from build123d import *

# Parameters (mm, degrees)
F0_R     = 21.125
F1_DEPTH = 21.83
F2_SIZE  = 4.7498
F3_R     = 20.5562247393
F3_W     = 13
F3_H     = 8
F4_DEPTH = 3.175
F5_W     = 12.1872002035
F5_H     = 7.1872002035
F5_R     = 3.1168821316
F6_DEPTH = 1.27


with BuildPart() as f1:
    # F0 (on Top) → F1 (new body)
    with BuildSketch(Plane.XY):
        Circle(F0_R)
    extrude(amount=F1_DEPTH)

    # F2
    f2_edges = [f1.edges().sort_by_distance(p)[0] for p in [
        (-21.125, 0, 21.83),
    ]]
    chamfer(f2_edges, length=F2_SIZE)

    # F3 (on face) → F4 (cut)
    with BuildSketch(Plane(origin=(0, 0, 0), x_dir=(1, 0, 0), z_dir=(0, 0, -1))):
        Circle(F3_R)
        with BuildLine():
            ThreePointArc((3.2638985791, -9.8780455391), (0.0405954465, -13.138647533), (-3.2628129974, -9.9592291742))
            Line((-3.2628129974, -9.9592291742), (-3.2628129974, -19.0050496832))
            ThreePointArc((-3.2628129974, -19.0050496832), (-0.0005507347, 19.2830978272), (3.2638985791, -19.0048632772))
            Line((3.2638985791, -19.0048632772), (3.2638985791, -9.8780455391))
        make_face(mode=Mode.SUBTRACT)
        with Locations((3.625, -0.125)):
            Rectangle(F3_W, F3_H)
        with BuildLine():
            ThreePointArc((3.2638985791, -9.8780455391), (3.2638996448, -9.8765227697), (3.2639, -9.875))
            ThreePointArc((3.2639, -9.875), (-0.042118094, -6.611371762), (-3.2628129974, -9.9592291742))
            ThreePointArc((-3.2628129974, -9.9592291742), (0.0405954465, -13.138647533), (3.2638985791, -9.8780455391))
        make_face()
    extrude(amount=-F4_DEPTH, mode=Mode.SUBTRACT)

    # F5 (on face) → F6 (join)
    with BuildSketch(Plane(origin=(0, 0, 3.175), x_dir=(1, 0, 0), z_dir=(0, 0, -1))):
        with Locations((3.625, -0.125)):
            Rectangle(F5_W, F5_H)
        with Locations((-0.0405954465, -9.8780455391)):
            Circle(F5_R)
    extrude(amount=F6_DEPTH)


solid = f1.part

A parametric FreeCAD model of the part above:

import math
import FreeCAD as App
import Part
import Sketcher
from FreeCAD import Vector
Q = App.Units.Quantity


def edges_at(feature, points):
    """Names of the edges that pass closest to the given points."""
    edges = feature.Shape.Edges
    near = lambda p: min(range(len(edges)), key=lambda i: edges[i].distToShape(Part.Vertex(*p))[0])
    return sorted({f"Edge{near(p) + 1}" for p in points})

doc = App.newDocument("Part")
body = doc.addObject("PartDesign::Body", "Body")

# Sketch on XY plane
sketch1 = body.newObject("Sketcher::SketchObject", "Sketch")
sketch1.AttachmentSupport = (doc.getObject("XY_Plane"), [""])
sketch1.MapMode = "FlatFace"
sketch1.addGeometry(Part.Circle(Vector(0, 0, 0), Vector(0, 0, 1), 21), False)
sketch1.addConstraint([
    Sketcher.Constraint("Coincident", 0, 3, -1, 1),
    Sketcher.Constraint("Diameter", 0, Q("42.25 mm")),
])
pad1 = body.newObject("PartDesign::Pad", "Pad")
pad1.Profile = sketch1
pad1.Length = 21.83
doc.recompute()

chamfer = body.newObject("PartDesign::Chamfer", "Chamfer")
chamfer.Base = (pad1, edges_at(pad1, [(-21.125, 0, 21.83)]))
chamfer.Size = Q("0.187 in")

# Sketch on XY plane
sketch2 = body.newObject("Sketcher::SketchObject", "Sketch001")
sketch2.AttachmentSupport = (doc.getObject("XY_Plane"), [""])
sketch2.MapMode = "FlatFace"
sketch2.addGeometry([
    Part.Circle(Vector(0, 0, 0), Vector(0, 0, 1), 20.5562),  # 0
    Part.LineSegment(Vector(3.2639, 19.0049, 0), Vector(3.2639, 9.878, 0)),  # 1
    Part.ArcOfCircle(Part.Circle(Vector(0.0002, 9.875, 0), Vector(0, 0, 1), 3.2637), math.radians(0), math.radians(0.05)),  # 2
    Part.ArcOfCircle(Part.Circle(Vector(0, 9.875, 0), Vector(0, 0, 1), 3.2639), math.radians(179), math.radians(360)),  # 3
    Part.LineSegment(Vector(-3.2628, 9.9592, 0), Vector(-3.2628, 19.005, 0)),  # 4
    Part.ArcOfCircle(Part.Circle(Vector(0, 0, 0), Vector(0, 0, 1), 19.2831), math.radians(100), math.radians(440)),  # 5
    Part.LineSegment(Vector(-2.875, -3.875, 0), Vector(-2.875, 4.125, 0)),  # 6
    Part.LineSegment(Vector(-2.875, 4.125, 0), Vector(10.125, 4.125, 0)),  # 7
    Part.LineSegment(Vector(10.125, 4.125, 0), Vector(10.125, -3.875, 0)),  # 8
    Part.LineSegment(Vector(10.125, -3.875, 0), Vector(-2.875, -3.875, 0)),  # 9
], False)
sketch2.addConstraint([
    Sketcher.Constraint("Coincident", 1, 2, 2, 2),
    Sketcher.Constraint("Tangent", 2, 1, 3, 2),
    Sketcher.Constraint("Coincident", 3, 1, 4, 1),
    Sketcher.Constraint("Coincident", 4, 2, 5, 1),
    Sketcher.Constraint("Coincident", 5, 2, 1, 1),
    Sketcher.Constraint("Coincident", 6, 2, 7, 1),
    Sketcher.Constraint("Coincident", 7, 2, 8, 1),
    Sketcher.Constraint("Coincident", 8, 2, 9, 1),
    Sketcher.Constraint("Coincident", 9, 2, 6, 1),
    Sketcher.Constraint("Vertical", 1),
    Sketcher.Constraint("Vertical", 4),
    Sketcher.Constraint("Vertical", 6),
    Sketcher.Constraint("Horizontal", 7),
    Sketcher.Constraint("Vertical", 8),
    Sketcher.Constraint("Horizontal", 9),
    Sketcher.Constraint("Coincident", 0, 3, -1, 1),
    Sketcher.Constraint("Coincident", 5, 3, -1, 1),
    Sketcher.Constraint("PointOnObject", 3, 3, -2),
    Sketcher.Constraint("Horizontal", 3, 3, 2, 1),
    Sketcher.Constraint("Radius", 3, Q("0.1285 in")),
    Sketcher.Constraint("Diameter", 0, Q("41.112449 mm")),
    Sketcher.Constraint("DistanceX", 7, 1, 7, 2, Q("13 mm")),
    Sketcher.Constraint("DistanceY", 6, 1, 6, 2, Q("8 mm")),
    Sketcher.Constraint("Radius", 2, Q("3.263656 mm")),
    Sketcher.Constraint("Radius", 5, Q("19.283098 mm")),
    Sketcher.Constraint("DistanceY", 4, 1, 4, 2, Q("9.045821 mm")),
    Sketcher.Constraint("DistanceY", -1, 1, 2, 3, Q("9.875 mm")),
    Sketcher.Constraint("DistanceX", 6, 2, -1, 1, Q("2.875 mm")),
    Sketcher.Constraint("DistanceY", -1, 1, 6, 2, Q("4.125 mm")),
    Sketcher.Constraint("DistanceY", 1, 2, 1, 1, Q("9.126818 mm")),
])
pocket1 = body.newObject("PartDesign::Pocket", "Pocket")
pocket1.Profile = sketch2
pocket1.Length = Q("0.125 in")
pocket1.Reversed = True

# Sketch on XY plane
sketch3 = body.newObject("Sketcher::SketchObject", "Sketch002")
sketch3.AttachmentSupport = (doc.getObject("XY_Plane"), [""])
sketch3.MapMode = "FlatFace"
sketch3.AttachmentOffset = App.Placement(Vector(0, 0, 0.125 * 25.4), App.Rotation())
sketch3.addGeometry([
    Part.LineSegment(Vector(-2.5, -3.5, 0), Vector(-2.5, 3.7, 0)),  # 0
    Part.LineSegment(Vector(-2.5, 3.7, 0), Vector(9.7, 3.7, 0)),  # 1
    Part.LineSegment(Vector(9.7, 3.7, 0), Vector(9.7, -3.5, 0)),  # 2
    Part.LineSegment(Vector(9.7, -3.5, 0), Vector(-2.5, -3.5, 0)),  # 3
    Part.Circle(Vector(0, 9.9, 0), Vector(0, 0, 1), 3.1),  # 4
], False)
sketch3.addConstraint([
    Sketcher.Constraint("Coincident", 0, 2, 1, 1),
    Sketcher.Constraint("Coincident", 1, 2, 2, 1),
    Sketcher.Constraint("Coincident", 2, 2, 3, 1),
    Sketcher.Constraint("Coincident", 3, 2, 0, 1),
    Sketcher.Constraint("Vertical", 0),
    Sketcher.Constraint("Horizontal", 1),
    Sketcher.Constraint("Vertical", 2),
    Sketcher.Constraint("Horizontal", 3),
    Sketcher.Constraint("Diameter", 4, Q("6.233764 mm")),
    Sketcher.Constraint("DistanceX", 1, 1, 1, 2, Q("12.1872 mm")),
    Sketcher.Constraint("DistanceY", 0, 1, 0, 2, Q("7.1872 mm")),
    Sketcher.Constraint("DistanceX", 0, 2, -1, 1, Q("2.4686 mm")),
    Sketcher.Constraint("DistanceY", -1, 1, 0, 2, Q("3.7186 mm")),
    Sketcher.Constraint("DistanceX", 4, 3, -1, 1, Q("0.040595 mm")),
    Sketcher.Constraint("DistanceY", -1, 1, 4, 3, Q("9.878046 mm")),
])
pad2 = body.newObject("PartDesign::Pad", "Pad001")
pad2.Profile = sketch3
pad2.Length = Q("0.05 in")
pad2.Reversed = True

doc.recompute()
